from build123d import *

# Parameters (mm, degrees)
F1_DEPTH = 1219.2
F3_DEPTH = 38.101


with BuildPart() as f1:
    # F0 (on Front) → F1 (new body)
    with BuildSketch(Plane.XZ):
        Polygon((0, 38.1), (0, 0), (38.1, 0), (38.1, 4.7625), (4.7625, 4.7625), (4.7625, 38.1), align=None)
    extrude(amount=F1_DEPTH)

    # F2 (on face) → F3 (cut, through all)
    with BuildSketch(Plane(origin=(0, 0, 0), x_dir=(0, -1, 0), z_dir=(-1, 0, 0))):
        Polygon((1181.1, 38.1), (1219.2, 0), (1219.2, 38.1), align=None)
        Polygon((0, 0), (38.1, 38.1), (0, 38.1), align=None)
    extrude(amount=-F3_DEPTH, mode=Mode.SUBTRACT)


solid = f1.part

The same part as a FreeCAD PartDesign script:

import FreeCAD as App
import Part
import Sketcher
from FreeCAD import Vector
Q = App.Units.Quantity

doc = App.newDocument("Part")
body = doc.addObject("PartDesign::Body", "Body")

sketch1 = body.newObject("Sketcher::SketchObject", "Sketch")
sketch1.AttachmentSupport = (doc.getObject("XZ_Plane"), [""])
sketch1.MapMode = "FlatFace"
sketch1.addGeometry([
    Part.LineSegment(Vector(0, 38.1, 0), Vector(0, 0, 0)),
    Part.LineSegment(Vector(0, 0, 0), Vector(38.1, 0, 0)),
    Part.LineSegment(Vector(38.1, 0, 0), Vector(38.1, 4.7625, 0)),
    Part.LineSegment(Vector(38.1, 4.7625, 0), Vector(4.7625, 4.7625, 0)),
    Part.LineSegment(Vector(4.7625, 4.7625, 0), Vector(4.7625, 38.1, 0)),
    Part.LineSegment(Vector(4.7625, 38.1, 0), Vector(0, 38.1, 0)),
], False)
sketch1.addConstraint([
    Sketcher.Constraint("Coincident", 0, 2, 1, 1),
    Sketcher.Constraint("Coincident", 1, 2, 2, 1),
    Sketcher.Constraint("Coincident", 2, 2, 3, 1),
    Sketcher.Constraint("Coincident", 3, 2, 4, 1),
    Sketcher.Constraint("Coincident", 4, 2, 5, 1),
    Sketcher.Constraint("Coincident", 5, 2, 0, 1),
    Sketcher.Constraint("Vertical", 0),
    Sketcher.Constraint("Horizontal", 1),
    Sketcher.Constraint("Vertical", 2),
    Sketcher.Constraint("Horizontal", 3),
    Sketcher.Constraint("Vertical", 4),
    Sketcher.Constraint("Horizontal", 5),
    Sketcher.Constraint("Coincident", 0, 2, -1, 1),
    Sketcher.Constraint("Equal", 1, 0),
    Sketcher.Constraint("Equal", 5, 2),
    Sketcher.Constraint("DistanceX", 1, 1, 1, 2, Q("1.5 in")),
    Sketcher.Constraint("DistanceX", 3, 2, 3, 1, Q("1.3125 in")),
])
pad1 = body.newObject("PartDesign::Pad", "Pad")
pad1.Profile = sketch1
pad1.Length = Q("48 in")

sketch2 = body.newObject("Sketcher::SketchObject", "Sketch001")
sketch2.AttachmentSupport = (doc.getObject("YZ_Plane"), [""])
sketch2.MapMode = "FlatFace"
sketch2.addGeometry([
    Part.LineSegment(Vector(-1181.1, 38.1, 0), Vector(-1219.2, 0, 0)),
    Part.LineSegment(Vector(-1219.2, 0, 0), Vector(-1219.2, 38.1, 0)),
    Part.LineSegment(Vector(-1219.2, 38.1, 0), Vector(-1181.1, 38.1, 0)),
    Part.LineSegment(Vector(0, 0, 0), Vector(-38.1, 38.1, 0)),
    Part.LineSegment(Vector(-38.1, 38.1, 0), Vector(0, 38.1, 0)),
    Part.LineSegment(Vector(0, 38.1, 0), Vector(0, 0, 0)),
], False)
sketch2.addConstraint([
    Sketcher.Constraint("Coincident", 0, 2, 1, 1),
    Sketcher.Constraint("Coincident", 1, 2, 2, 1),
    Sketcher.Constraint("Coincident", 2, 2, 0, 1),
    Sketcher.Constraint("Coincident", 3, 2, 4, 1),
    Sketcher.Constraint("Coincident", 4, 2, 5, 1),
    Sketcher.Constraint("Coincident", 5, 2, 3, 1),
    Sketcher.Constraint("Vertical", 1),
    Sketcher.Constraint("Horizontal", 2),
    Sketcher.Constraint("Horizontal", 4),
    Sketcher.Constraint("Vertical", 5),
    Sketcher.Constraint("Coincident", 5, 2, -1, 1),
    Sketcher.Constraint("PointOnObject", 0, 2, -1),
    Sketcher.Constraint("Perpendicular", 0, 3),
    Sketcher.Constraint("Horizontal", 2, 2, 3, 2),
    Sketcher.Constraint("Equal", 2, 4),
    Sketcher.Constraint("DistanceX", 2, 1, 2, 2, Q("1.5 in")),
    Sketcher.Constraint("DistanceX", 0, 2, -1, 1, Q("48 in")),
])
pocket1 = body.newObject("PartDesign::Pocket", "Pocket")
pocket1.Profile = sketch2
pocket1.Type = "ThroughAll"
pocket1.Reversed = True

doc.recompute()
